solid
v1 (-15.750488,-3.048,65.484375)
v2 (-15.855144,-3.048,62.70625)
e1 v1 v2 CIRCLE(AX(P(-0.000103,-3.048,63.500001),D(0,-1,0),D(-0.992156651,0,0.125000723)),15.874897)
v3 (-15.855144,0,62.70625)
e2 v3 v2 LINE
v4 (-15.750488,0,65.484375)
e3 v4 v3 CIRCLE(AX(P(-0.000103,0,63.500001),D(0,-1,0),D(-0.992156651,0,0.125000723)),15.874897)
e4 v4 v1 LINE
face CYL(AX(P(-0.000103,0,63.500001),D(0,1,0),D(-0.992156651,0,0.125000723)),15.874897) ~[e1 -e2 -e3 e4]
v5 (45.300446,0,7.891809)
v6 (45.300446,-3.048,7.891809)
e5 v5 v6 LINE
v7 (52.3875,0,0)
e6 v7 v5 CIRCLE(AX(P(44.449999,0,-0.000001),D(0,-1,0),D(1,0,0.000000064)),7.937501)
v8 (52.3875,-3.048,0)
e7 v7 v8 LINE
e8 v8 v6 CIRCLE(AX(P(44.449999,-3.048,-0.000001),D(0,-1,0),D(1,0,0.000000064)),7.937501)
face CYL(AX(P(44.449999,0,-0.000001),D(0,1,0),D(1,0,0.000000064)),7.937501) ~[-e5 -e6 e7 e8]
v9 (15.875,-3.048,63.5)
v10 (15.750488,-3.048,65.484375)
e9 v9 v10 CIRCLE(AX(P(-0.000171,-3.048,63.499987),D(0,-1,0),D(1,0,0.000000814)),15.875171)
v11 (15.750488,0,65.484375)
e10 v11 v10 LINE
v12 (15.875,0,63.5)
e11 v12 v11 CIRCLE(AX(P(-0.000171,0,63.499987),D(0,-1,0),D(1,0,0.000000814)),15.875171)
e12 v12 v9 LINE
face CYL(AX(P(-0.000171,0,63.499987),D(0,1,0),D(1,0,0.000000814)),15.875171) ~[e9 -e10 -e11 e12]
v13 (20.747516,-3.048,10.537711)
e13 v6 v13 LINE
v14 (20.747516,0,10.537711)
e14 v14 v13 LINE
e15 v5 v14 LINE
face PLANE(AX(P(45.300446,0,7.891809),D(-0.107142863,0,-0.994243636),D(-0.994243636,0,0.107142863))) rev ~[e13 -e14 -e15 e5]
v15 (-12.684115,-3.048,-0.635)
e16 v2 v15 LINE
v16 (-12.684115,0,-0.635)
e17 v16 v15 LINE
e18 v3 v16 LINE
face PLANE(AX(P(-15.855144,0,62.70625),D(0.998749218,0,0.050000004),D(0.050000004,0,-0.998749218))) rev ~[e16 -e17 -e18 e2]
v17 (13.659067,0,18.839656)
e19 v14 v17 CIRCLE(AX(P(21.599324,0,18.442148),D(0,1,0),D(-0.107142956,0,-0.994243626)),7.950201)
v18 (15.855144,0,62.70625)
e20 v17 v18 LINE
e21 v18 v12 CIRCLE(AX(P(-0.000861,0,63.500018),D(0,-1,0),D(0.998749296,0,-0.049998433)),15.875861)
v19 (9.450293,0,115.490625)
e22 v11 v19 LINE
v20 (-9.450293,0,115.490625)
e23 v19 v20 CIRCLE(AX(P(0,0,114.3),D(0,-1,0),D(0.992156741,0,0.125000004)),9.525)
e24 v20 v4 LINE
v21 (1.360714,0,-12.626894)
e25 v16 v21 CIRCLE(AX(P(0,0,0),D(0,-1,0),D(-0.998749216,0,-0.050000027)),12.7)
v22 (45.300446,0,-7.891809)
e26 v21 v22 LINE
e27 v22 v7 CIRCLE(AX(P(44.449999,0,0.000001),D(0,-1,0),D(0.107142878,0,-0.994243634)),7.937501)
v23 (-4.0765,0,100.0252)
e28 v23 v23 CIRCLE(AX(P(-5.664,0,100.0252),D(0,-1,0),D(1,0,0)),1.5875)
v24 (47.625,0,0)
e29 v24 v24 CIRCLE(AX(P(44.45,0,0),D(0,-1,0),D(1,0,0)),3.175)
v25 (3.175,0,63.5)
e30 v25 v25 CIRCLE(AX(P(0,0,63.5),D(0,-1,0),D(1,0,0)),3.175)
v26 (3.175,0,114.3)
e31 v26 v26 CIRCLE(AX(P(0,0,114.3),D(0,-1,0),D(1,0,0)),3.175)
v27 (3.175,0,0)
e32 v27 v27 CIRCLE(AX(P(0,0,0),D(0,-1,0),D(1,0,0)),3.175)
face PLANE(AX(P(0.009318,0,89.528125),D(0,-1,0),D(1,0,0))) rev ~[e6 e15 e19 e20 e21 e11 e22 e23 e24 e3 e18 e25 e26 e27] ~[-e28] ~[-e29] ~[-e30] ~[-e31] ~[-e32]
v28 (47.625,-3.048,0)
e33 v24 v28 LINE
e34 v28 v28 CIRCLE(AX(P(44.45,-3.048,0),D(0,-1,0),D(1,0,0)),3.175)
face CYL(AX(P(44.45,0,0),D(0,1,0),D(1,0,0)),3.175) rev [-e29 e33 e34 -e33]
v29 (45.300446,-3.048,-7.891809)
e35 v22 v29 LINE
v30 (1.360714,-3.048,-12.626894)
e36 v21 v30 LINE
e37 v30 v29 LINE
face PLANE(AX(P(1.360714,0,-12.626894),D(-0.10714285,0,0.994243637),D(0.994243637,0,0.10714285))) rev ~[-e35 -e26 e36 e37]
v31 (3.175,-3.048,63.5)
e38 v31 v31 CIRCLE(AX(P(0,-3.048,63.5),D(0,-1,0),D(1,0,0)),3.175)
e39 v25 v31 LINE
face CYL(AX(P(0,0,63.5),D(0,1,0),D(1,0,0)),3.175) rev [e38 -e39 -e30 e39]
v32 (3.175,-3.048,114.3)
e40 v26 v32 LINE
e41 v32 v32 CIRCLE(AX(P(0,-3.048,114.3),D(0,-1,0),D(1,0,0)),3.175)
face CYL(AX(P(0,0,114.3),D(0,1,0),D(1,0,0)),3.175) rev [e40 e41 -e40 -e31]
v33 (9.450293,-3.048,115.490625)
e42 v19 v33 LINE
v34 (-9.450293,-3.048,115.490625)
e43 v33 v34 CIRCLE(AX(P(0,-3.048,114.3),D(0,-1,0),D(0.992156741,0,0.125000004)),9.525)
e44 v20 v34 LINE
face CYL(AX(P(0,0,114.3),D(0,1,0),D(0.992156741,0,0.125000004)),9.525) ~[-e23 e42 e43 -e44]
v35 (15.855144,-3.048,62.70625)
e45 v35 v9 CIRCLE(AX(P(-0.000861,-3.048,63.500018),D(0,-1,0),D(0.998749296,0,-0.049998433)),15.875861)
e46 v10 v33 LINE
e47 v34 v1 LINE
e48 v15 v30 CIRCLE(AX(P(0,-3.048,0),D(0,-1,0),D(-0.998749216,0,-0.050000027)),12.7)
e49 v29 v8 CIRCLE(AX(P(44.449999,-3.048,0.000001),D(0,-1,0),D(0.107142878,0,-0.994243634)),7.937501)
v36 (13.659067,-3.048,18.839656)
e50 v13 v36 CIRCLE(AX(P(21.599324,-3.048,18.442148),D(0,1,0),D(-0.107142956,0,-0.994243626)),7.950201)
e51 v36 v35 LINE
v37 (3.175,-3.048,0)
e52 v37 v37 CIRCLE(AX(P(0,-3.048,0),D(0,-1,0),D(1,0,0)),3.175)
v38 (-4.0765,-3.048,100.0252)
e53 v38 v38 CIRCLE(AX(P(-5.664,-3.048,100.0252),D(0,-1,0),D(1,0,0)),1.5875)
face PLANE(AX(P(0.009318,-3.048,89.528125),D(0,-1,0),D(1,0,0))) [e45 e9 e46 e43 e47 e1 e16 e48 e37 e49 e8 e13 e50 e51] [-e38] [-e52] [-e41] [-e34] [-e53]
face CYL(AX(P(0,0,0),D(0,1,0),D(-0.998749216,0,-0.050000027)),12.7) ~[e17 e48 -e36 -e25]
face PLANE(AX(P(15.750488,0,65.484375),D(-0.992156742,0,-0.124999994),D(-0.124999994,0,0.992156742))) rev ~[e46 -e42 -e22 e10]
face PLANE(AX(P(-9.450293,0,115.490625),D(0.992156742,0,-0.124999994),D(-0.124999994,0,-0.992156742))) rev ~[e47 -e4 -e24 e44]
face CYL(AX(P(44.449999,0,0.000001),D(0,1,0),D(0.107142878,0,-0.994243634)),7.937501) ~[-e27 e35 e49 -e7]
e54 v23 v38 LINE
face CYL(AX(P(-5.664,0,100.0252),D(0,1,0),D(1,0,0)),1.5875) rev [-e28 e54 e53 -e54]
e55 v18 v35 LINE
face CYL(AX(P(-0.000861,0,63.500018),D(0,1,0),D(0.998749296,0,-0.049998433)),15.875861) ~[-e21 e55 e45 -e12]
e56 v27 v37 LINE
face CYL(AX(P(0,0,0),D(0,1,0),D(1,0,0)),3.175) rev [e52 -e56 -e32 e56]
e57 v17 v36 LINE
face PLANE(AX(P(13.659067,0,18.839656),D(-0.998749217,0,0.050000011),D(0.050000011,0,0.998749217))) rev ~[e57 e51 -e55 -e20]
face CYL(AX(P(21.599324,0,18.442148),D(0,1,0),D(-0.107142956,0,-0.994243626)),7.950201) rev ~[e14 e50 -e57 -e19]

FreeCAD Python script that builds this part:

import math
import FreeCAD as App
import Part
import Sketcher
from FreeCAD import Vector
Q = App.Units.Quantity

doc = App.newDocument("Part")
body = doc.addObject("PartDesign::Body", "Body")

# Sketch on XZ plane
sketch1 = body.newObject("Sketcher::SketchObject", "Sketch")
sketch1.AttachmentSupport = (doc.getObject("XZ_Plane"), [""])
sketch1.MapMode = "FlatFace"
sketch1.addGeometry([
    Part.LineSegment(Vector(-9.450293, 115.490625, 0), Vector(-15.750488, 65.484375, 0)),  # 0
    Part.ArcOfCircle(Part.Circle(Vector(-0.000103, 63.500001, 0), Vector(0, 0, 1), 15.874897), math.radians(172.819202), math.radians(182.866008)),  # 1
    Part.LineSegment(Vector(-15.855144, 62.70625, 0), Vector(-12.684115, -0.635, 0)),  # 2
    Part.ArcOfCircle(Part.Circle(Vector(0, 0, 0), Vector(0, 0, 1), 12.7), math.radians(-177.134014), math.radians(-83.849362)),  # 3
    Part.LineSegment(Vector(1.360714, -12.626894, 0), Vector(45.300446, -7.891809, 0)),  # 4
    Part.ArcOfCircle(Part.Circle(Vector(44.449999, 0.000001, 0), Vector(0, 0, 1), 7.937501), math.radians(-83.849359), math.radians(-0.000004)),  # 5
    Part.ArcOfCircle(Part.Circle(Vector(44.449999, -0.000001, 0), Vector(0, 0, 1), 7.937501), math.radians(0.000004), math.radians(83.849359)),  # 6
    Part.LineSegment(Vector(45.300446, 7.891809, 0), Vector(20.747516, 10.537711, 0)),  # 7
    Part.ArcOfCircle(Part.Circle(Vector(21.599324, 18.442148, 0), Vector(0, 0, 1), 7.950201), math.radians(177.134028), math.radians(263.849354)),  # 8
    Part.LineSegment(Vector(13.659067, 18.839656, 0), Vector(15.855144, 62.70625, 0)),  # 9
    Part.ArcOfCircle(Part.Circle(Vector(-0.000861, 63.500018, 0), Vector(0, 0, 1), 15.875861), math.radians(-2.865894), math.radians(-0.000066)),  # 10
    Part.ArcOfCircle(Part.Circle(Vector(-0.000171, 63.499987, 0), Vector(0, 0, 1), 15.875171), math.radians(0.000047), math.radians(7.180725)),  # 11
    Part.LineSegment(Vector(15.750488, 65.484375, 0), Vector(9.450293, 115.490625, 0)),  # 12
    Part.ArcOfCircle(Part.Circle(Vector(0, 114.3, 0), Vector(0, 0, 1), 9.525), math.radians(7.180756), math.radians(172.819244)),  # 13
    Part.Circle(Vector(0, 0, 0), Vector(0, 0, 1), 3.175),  # 14
    Part.Circle(Vector(44.45, 0, 0), Vector(0, 0, 1), 3.175),  # 15
    Part.Circle(Vector(0, 63.5, 0), Vector(0, 0, 1), 3.175),  # 16
    Part.Circle(Vector(-5.664, 100.0252, 0), Vector(0, 0, 1), 1.5875),  # 17
    Part.Circle(Vector(0, 114.3, 0), Vector(0, 0, 1), 3.175),  # 18
], False)
sketch1.addConstraint([
    Sketcher.Constraint("Coincident", 0, 2, 1, 1),
    Sketcher.Constraint("Coincident", 1, 2, 2, 1),
    Sketcher.Constraint("Coincident", 2, 2, 3, 1),
    Sketcher.Constraint("Coincident", 3, 2, 4, 1),
    Sketcher.Constraint("Coincident", 4, 2, 5, 1),
    Sketcher.Constraint("Coincident", 5, 2, 6, 1),
    Sketcher.Constraint("Coincident", 6, 2, 7, 1),
    Sketcher.Constraint("Coincident", 7, 2, 8, 2),
    Sketcher.Constraint("Coincident", 8, 1, 9, 1),
    Sketcher.Constraint("Coincident", 9, 2, 10, 1),
    Sketcher.Constraint("Coincident", 10, 2, 11, 1),
    Sketcher.Constraint("Coincident", 11, 2, 12, 1),
    Sketcher.Constraint("Coincident", 12, 2, 13, 1),
    Sketcher.Constraint("Coincident", 13, 2, 0, 1),
    Sketcher.Constraint("Coincident", 3, 3, -1, 1),
    Sketcher.Constraint("Coincident", 14, 3, -1, 1),
    Sketcher.Constraint("Coincident", 6, 3, 5, 3),
    Sketcher.Constraint("Coincident", 15, 3, 5, 3),
    Sketcher.Constraint("Coincident", 18, 3, 13, 3),
    Sketcher.Constraint("PointOnObject", 5, 3, -1),
    Sketcher.Constraint("PointOnObject", 13, 3, -2),
    Sketcher.Constraint("PointOnObject", 16, 3, -2),
    Sketcher.Constraint("PointOnObject", 5, 2, -1),
    Sketcher.Constraint("Radius", 3, Q("0.5 in")),
    Sketcher.Constraint("Diameter", 14, Q("0.25 in")),
    Sketcher.Constraint("Diameter", 15, Q("0.25 in")),
    Sketcher.Constraint("Diameter", 16, Q("0.25 in")),
    Sketcher.Constraint("Diameter", 18, Q("0.25 in")),
    Sketcher.Constraint("Diameter", 17, Q("0.125 in")),
    Sketcher.Constraint("Radius", 5, Q("0.3125 in")),
    Sketcher.Constraint("Radius", 8, Q("0.313 in")),
    Sketcher.Constraint("Radius", 13, Q("0.375 in")),
    Sketcher.Constraint("DistanceY", 1, 3, 13, 3, Q("1.9999999 in")),
    Sketcher.Constraint("DistanceY", 16, 3, 13, 3, Q("2 in")),
    Sketcher.Constraint("DistanceY", -1, 1, 1, 3, Q("2.5000001 in")),
    Sketcher.Constraint("DistanceY", -1, 1, 10, 2, Q("2.5 in")),
    Sketcher.Constraint("DistanceX", -1, 1, 5, 3, Q("1.75 in")),
    Sketcher.Constraint("DistanceY", -1, 1, 17, 3, Q("3.938 in")),
    Sketcher.Constraint("DistanceY", -1, 1, 0, 2, Q("2.578125 in")),
    Sketcher.Constraint("DistanceY", -1, 1, 1, 2, Q("2.46875 in")),
    Sketcher.Constraint("DistanceY", 2, 2, -1, 1, Q("0.025 in")),
    Sketcher.Constraint("DistanceY", -1, 1, 9, 2, Q("2.46875 in")),
    Sketcher.Constraint("DistanceX", -1, 1, 10, 2, Q("0.625 in")),
    Sketcher.Constraint("DistanceY", -1, 1, 11, 2, Q("2.578125 in")),
    Sketcher.Constraint("DistanceY", -1, 1, 12, 2, Q("4.546875 in")),
    Sketcher.Constraint("DistanceY", -1, 1, 13, 2, Q("4.546875 in")),
    Sketcher.Constraint("Radius", 10, 15.875861),
    Sketcher.Constraint("Radius", 11, 15.875171),
    Sketcher.Constraint("Radius", 1, 15.874897),
    Sketcher.Constraint("DistanceX", 17, 3, -1, 1, 5.664),
    Sketcher.Constraint("DistanceY", 6, 2, 7, 2, 2.645902),
    Sketcher.Constraint("Distance", 4, 44.194129),
    Sketcher.Constraint("Distance", 9, 43.92153),
    Sketcher.Constraint("DistanceY", -1, 1, 10, 3, 63.500018),
    Sketcher.Constraint("DistanceX", 0, 2, -1, 1, 15.750488),
    Sketcher.Constraint("DistanceY", 4, 2, -1, 1, 7.891809),
    Sketcher.Constraint("DistanceY", -1, 1, 6, 2, 7.891809),
    Sketcher.Constraint("DistanceX", -1, 1, 11, 2, 15.750488),
    Sketcher.Constraint("DistanceY", 6, 3, 8, 3, 18.442148),
    Sketcher.Constraint("DistanceX", 2, 2, 8, 3, 34.283439),
])
pad1 = body.newObject("PartDesign::Pad", "Pad")
pad1.Profile = sketch1
pad1.Length = Q("0.12 in")

doc.recompute()
